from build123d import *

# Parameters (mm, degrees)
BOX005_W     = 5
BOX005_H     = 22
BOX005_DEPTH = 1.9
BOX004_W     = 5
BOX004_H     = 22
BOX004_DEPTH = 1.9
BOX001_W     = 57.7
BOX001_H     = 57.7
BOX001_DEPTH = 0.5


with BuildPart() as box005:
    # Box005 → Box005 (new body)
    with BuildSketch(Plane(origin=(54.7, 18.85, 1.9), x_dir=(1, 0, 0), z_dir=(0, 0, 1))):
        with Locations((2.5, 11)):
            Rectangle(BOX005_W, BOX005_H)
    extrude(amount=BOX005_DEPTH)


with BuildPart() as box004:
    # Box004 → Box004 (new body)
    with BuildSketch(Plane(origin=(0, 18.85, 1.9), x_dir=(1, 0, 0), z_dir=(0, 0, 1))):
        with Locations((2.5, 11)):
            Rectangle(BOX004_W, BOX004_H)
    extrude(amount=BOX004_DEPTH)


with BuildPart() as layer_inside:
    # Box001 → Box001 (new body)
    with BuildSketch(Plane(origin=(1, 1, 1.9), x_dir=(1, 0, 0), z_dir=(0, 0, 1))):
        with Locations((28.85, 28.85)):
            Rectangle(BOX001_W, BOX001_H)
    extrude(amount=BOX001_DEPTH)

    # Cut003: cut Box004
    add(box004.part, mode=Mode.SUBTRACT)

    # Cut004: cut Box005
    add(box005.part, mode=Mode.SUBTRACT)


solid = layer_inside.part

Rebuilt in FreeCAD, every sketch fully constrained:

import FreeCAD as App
import Part
import Sketcher
Q = App.Units.Quantity

doc = App.newDocument("Part")
body = doc.addObject("PartDesign::Body", "Body")

sketch1 = body.newObject("Sketcher::SketchObject", "Sketch")
sketch1.AttachmentSupport = (doc.getObject("XY_Plane"), [""])
sketch1.MapMode = "FlatFace"
sketch1.AttachmentOffset = App.Placement(App.Vector(0, 0, 1.9), App.Rotation())
sketch1.addGeometry([
    Part.LineSegment(App.Vector(55, 41, 0), App.Vector(55, 19, 0)),
    Part.LineSegment(App.Vector(55, 19, 0), App.Vector(60, 19, 0)),
    Part.LineSegment(App.Vector(60, 19, 0), App.Vector(60, 41, 0)),
    Part.LineSegment(App.Vector(60, 41, 0), App.Vector(55, 41, 0)),
], False)
sketch1.addConstraint([
    Sketcher.Constraint("Coincident", 0, 2, 1, 1),
    Sketcher.Constraint("Coincident", 1, 2, 2, 1),
    Sketcher.Constraint("Coincident", 2, 2, 3, 1),
    Sketcher.Constraint("Coincident", 3, 2, 0, 1),
    Sketcher.Constraint("Vertical", 0),
    Sketcher.Constraint("Horizontal", 1),
    Sketcher.Constraint("Vertical", 2),
    Sketcher.Constraint("Horizontal", 3),
    Sketcher.Constraint("DistanceX", 1, 1, 1, 2, Q("5 mm")),
    Sketcher.Constraint("DistanceY", 0, 2, 0, 1, Q("22 mm")),
    Sketcher.Constraint("DistanceX", -1, 1, 0, 2, Q("54.7 mm")),
    Sketcher.Constraint("DistanceY", -1, 1, 0, 2, Q("18.85 mm")),
])
pad1 = body.newObject("PartDesign::Pad", "Pad")
pad1.Profile = sketch1
pad1.Length = 1.9
body2 = doc.addObject("PartDesign::Body", "Body001")

sketch2 = body2.newObject("Sketcher::SketchObject", "Sketch001")
sketch2.AttachmentSupport = (doc.getObject("XY_Plane001"), [""])
sketch2.MapMode = "FlatFace"
sketch2.AttachmentOffset = App.Placement(App.Vector(0, 0, 1.9), App.Rotation())
sketch2.addGeometry([
    Part.LineSegment(App.Vector(0, 41, 0), App.Vector(0, 19, 0)),
    Part.LineSegment(App.Vector(0, 19, 0), App.Vector(5, 19, 0)),
    Part.LineSegment(App.Vector(5, 19, 0), App.Vector(5, 41, 0)),
    Part.LineSegment(App.Vector(5, 41, 0), App.Vector(0, 41, 0)),
], False)
sketch2.addConstraint([
    Sketcher.Constraint("Coincident", 0, 2, 1, 1),
    Sketcher.Constraint("Coincident", 1, 2, 2, 1),
    Sketcher.Constraint("Coincident", 2, 2, 3, 1),
    Sketcher.Constraint("Coincident", 3, 2, 0, 1),
    Sketcher.Constraint("Vertical", 0),
    Sketcher.Constraint("Horizontal", 1),
    Sketcher.Constraint("Vertical", 2),
    Sketcher.Constraint("Horizontal", 3),
    Sketcher.Constraint("PointOnObject", 0, 2, -2),
    Sketcher.Constraint("DistanceX", 1, 1, 1, 2, Q("5 mm")),
    Sketcher.Constraint("DistanceY", 0, 2, 0, 1, Q("22 mm")),
    Sketcher.Constraint("DistanceY", -1, 1, 0, 2, Q("18.85 mm")),
])
pad2 = body2.newObject("PartDesign::Pad", "Pad001")
pad2.Profile = sketch2
pad2.Length = 1.9
body3 = doc.addObject("PartDesign::Body", "Body002")

sketch3 = body3.newObject("Sketcher::SketchObject", "Sketch002")
sketch3.AttachmentSupport = (doc.getObject("XY_Plane002"), [""])
sketch3.MapMode = "FlatFace"
sketch3.AttachmentOffset = App.Placement(App.Vector(0, 0, 1.9), App.Rotation())
sketch3.addGeometry([
    Part.LineSegment(App.Vector(1, 59, 0), App.Vector(1, 1, 0)),
    Part.LineSegment(App.Vector(1, 1, 0), App.Vector(59, 1, 0)),
    Part.LineSegment(App.Vector(59, 1, 0), App.Vector(59, 59, 0)),
    Part.LineSegment(App.Vector(59, 59, 0), App.Vector(1, 59, 0)),
], False)
sketch3.addConstraint([
    Sketcher.Constraint("Coincident", 0, 2, 1, 1),
    Sketcher.Constraint("Coincident", 1, 2, 2, 1),
    Sketcher.Constraint("Coincident", 2, 2, 3, 1),
    Sketcher.Constraint("Coincident", 3, 2, 0, 1),
    Sketcher.Constraint("Vertical", 0),
    Sketcher.Constraint("Horizontal", 1),
    Sketcher.Constraint("Vertical", 2),
    Sketcher.Constraint("Horizontal", 3),
    Sketcher.Constraint("Equal", 3, 0),
    Sketcher.Constraint("DistanceX", 1, 1, 1, 2, Q("57.7 mm")),
    Sketcher.Constraint("DistanceX", -1, 1, 0, 2, Q("1 mm")),
    Sketcher.Constraint("DistanceY", -1, 1, 0, 2, Q("1 mm")),
])
pad3 = body3.newObject("PartDesign::Pad", "Pad002")
pad3.Profile = sketch3
pad3.Length = 0.5
doc.recompute()

boolean = body3.newObject("PartDesign::Boolean", "Boolean")
boolean.Type = "Cut"
boolean.addObjects([body2])
doc.recompute()

boolean2 = body3.newObject("PartDesign::Boolean", "Boolean001")
boolean2.Type = "Cut"
boolean2.addObjects([body])

doc.recompute()
